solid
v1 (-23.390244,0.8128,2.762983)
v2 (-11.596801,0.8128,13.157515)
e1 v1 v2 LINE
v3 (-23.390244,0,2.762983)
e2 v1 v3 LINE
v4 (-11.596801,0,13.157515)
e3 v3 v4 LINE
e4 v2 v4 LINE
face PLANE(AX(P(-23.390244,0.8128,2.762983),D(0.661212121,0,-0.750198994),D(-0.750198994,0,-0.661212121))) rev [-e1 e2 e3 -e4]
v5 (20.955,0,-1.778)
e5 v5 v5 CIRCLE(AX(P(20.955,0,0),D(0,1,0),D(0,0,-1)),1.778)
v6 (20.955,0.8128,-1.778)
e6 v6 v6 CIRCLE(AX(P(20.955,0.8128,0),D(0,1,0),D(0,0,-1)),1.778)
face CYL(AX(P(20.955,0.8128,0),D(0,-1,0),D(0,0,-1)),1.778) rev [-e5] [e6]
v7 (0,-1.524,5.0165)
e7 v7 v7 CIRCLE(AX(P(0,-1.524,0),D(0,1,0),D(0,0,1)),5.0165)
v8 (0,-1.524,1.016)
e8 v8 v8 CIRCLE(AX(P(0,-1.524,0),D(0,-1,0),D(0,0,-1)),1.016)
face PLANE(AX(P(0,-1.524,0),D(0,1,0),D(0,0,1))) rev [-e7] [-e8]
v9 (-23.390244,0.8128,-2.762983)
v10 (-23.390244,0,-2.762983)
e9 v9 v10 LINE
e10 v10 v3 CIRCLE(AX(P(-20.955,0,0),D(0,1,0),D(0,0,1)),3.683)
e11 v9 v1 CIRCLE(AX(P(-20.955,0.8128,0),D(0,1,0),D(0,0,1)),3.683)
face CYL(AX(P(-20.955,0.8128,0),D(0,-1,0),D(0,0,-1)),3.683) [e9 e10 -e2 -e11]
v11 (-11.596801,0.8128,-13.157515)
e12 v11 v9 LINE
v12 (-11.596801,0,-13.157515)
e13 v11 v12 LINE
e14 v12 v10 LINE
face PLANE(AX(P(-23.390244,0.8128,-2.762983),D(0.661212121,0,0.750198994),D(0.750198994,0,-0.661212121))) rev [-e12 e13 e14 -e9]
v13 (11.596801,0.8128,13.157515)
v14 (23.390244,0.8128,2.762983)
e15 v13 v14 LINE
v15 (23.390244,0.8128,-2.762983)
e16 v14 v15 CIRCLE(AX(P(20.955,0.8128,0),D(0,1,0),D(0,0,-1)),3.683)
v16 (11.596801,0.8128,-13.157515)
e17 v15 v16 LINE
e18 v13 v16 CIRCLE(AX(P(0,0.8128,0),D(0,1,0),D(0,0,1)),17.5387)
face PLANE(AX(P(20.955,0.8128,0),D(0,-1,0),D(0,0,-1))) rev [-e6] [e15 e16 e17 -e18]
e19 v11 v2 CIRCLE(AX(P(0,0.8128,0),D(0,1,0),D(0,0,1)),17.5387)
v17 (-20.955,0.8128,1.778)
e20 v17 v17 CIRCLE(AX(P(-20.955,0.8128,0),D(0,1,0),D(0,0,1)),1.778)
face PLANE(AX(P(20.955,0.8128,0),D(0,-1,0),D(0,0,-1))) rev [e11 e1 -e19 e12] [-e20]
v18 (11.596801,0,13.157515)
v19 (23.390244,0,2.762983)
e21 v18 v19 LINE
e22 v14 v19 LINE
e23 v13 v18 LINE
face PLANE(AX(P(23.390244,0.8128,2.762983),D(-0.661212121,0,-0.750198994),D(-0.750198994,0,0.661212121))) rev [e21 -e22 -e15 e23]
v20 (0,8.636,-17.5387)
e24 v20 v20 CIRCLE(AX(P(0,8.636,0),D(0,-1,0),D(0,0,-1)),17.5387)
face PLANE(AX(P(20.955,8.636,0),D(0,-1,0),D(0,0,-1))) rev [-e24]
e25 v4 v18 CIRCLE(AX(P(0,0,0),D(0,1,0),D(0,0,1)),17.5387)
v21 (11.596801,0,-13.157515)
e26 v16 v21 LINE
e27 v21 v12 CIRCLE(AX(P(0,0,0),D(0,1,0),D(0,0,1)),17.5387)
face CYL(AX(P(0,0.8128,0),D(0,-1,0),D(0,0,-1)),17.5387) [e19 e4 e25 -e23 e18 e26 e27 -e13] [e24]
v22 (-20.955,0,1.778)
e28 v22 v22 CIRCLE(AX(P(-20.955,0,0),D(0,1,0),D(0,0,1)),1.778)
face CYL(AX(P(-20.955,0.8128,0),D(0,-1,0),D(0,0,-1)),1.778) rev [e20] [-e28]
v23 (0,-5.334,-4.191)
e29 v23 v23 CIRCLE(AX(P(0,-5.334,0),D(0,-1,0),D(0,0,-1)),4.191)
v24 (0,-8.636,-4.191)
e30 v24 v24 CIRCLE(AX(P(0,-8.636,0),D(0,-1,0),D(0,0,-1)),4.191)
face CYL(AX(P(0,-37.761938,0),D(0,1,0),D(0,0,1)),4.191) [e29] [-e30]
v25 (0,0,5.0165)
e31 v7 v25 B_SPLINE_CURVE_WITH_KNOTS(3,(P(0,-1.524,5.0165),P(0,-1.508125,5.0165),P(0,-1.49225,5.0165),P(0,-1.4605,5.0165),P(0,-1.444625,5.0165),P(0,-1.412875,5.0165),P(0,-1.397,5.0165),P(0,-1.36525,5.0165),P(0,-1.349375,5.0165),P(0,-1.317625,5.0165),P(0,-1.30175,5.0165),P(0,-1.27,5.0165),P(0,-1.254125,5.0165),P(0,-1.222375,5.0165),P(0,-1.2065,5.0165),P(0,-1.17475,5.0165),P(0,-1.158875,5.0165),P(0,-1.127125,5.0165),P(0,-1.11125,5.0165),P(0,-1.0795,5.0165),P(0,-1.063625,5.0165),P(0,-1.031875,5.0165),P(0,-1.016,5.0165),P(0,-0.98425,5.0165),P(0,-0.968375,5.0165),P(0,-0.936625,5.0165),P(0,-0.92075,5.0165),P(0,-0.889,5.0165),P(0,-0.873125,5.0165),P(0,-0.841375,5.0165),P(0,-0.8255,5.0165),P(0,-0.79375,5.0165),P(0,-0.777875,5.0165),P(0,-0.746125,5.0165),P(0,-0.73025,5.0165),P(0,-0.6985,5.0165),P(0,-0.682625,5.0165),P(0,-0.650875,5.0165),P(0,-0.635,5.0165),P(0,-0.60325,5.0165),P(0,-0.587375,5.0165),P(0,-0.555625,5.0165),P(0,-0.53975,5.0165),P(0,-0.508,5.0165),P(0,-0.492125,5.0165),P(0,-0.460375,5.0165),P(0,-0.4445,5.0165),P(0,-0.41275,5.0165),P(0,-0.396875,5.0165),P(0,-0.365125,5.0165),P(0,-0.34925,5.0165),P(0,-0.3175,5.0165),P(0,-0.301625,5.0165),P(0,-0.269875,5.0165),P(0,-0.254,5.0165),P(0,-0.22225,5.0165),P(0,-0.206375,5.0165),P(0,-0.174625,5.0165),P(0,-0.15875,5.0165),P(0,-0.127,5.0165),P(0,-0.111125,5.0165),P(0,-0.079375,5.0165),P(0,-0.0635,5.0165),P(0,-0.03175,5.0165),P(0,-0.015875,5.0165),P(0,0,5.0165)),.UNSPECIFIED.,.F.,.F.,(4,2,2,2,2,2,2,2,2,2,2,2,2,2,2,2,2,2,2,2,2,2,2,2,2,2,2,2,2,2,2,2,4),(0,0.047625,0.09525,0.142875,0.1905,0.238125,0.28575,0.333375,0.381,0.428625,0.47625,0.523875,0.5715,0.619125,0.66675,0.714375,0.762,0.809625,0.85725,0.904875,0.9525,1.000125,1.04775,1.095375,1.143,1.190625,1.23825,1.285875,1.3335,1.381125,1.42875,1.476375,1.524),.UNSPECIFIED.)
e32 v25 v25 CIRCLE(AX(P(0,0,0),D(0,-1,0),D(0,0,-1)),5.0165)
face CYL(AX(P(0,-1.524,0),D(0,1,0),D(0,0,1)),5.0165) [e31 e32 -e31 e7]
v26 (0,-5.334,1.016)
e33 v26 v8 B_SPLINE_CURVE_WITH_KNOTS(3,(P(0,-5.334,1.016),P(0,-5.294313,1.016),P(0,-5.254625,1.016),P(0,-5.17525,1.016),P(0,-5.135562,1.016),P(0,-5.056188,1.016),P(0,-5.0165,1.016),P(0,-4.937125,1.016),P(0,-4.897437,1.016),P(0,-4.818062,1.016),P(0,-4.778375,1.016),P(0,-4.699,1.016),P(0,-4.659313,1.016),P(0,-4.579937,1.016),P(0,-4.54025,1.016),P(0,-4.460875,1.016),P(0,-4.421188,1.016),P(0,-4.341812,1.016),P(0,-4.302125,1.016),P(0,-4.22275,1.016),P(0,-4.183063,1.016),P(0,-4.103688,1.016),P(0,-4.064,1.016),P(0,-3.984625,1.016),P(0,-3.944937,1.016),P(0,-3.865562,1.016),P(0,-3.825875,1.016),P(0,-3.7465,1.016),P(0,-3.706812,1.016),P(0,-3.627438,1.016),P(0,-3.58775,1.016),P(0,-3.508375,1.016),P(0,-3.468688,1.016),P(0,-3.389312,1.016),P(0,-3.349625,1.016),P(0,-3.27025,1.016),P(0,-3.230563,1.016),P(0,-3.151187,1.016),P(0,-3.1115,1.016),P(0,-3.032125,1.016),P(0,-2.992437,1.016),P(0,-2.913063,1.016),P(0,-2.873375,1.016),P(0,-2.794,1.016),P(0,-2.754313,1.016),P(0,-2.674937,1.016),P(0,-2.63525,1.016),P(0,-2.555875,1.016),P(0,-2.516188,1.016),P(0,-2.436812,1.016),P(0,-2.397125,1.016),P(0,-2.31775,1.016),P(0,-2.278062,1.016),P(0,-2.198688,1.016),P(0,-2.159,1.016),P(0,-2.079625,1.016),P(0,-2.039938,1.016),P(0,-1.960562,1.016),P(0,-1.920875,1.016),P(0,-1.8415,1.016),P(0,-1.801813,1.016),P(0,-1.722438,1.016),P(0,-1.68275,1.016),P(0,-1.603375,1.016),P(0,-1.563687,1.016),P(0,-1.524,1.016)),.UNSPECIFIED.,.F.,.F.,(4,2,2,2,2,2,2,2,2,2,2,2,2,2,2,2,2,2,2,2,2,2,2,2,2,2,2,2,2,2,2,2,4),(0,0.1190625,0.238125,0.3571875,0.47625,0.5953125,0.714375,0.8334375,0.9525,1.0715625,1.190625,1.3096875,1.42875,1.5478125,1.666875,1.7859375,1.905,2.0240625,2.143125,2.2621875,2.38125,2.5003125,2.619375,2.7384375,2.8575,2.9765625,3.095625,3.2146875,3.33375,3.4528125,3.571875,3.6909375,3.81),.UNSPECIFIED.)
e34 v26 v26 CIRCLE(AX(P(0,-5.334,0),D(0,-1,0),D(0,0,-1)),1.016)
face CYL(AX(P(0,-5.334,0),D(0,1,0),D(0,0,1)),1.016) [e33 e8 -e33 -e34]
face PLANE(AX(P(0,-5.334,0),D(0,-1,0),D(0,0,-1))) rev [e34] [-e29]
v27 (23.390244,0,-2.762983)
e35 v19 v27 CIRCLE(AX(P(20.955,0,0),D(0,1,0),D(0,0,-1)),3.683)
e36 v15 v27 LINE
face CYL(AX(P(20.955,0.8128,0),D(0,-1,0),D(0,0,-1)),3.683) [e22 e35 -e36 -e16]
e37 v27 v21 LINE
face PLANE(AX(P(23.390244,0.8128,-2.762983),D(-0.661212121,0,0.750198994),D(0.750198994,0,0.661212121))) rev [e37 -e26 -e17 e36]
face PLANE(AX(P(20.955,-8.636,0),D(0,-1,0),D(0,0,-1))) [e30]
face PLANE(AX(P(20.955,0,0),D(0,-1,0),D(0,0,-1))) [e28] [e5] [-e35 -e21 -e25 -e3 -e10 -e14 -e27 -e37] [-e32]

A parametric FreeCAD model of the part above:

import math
import FreeCAD as App
import Part
import Sketcher

V = App.Vector
Q = App.Units.Quantity

doc = App.newDocument("Part")
body = doc.addObject("PartDesign::Body", "Body")

# Sketch on XZ plane
sketch1 = body.newObject("Sketcher::SketchObject", "Sketch")
sketch1.AttachmentSupport = (doc.getObject("XZ_Plane"), [""])
sketch1.MapMode = "FlatFace"
sketch1.addGeometry([
    Part.LineSegment(V(-11.596801, -13.157515, 0), V(-23.390244, -2.762983, 0)),  # 0
    Part.ArcOfCircle(Part.Circle(V(-20.955, 0, 0), V(0, 0, 1), 3.683), math.radians(131.392382), math.radians(228.607618)),  # 1
    Part.LineSegment(V(-23.390244, 2.762983, 0), V(-11.596801, 13.157515, 0)),  # 2
    Part.ArcOfCircle(Part.Circle(V(0, 0, 0), V(0, 0, 1), 17.5387), math.radians(48.607618), math.radians(131.392382)),  # 3
    Part.LineSegment(V(11.596801, 13.157515, 0), V(23.390244, 2.762983, 0)),  # 4
    Part.ArcOfCircle(Part.Circle(V(20.955, 0, 0), V(0, 0, 1), 3.683), math.radians(-48.607618), math.radians(48.607618)),  # 5
    Part.LineSegment(V(23.390244, -2.762983, 0), V(11.596801, -13.157515, 0)),  # 6
    Part.ArcOfCircle(Part.Circle(V(0, 0, 0), V(0, 0, 1), 17.5387), math.radians(-131.392382), math.radians(-48.607618)),  # 7
    Part.Circle(V(20.955, 0, 0), V(0, 0, 1), 1.778),  # 8
    Part.Circle(V(-20.955, 0, 0), V(0, 0, 1), 1.778),  # 9
], False)
sketch1.addConstraint([
    Sketcher.Constraint("Tangent", 0, 2, 1, 2),
    Sketcher.Constraint("Tangent", 1, 1, 2, 1),
    Sketcher.Constraint("Tangent", 2, 2, 3, 2),
    Sketcher.Constraint("Tangent", 3, 1, 4, 1),
    Sketcher.Constraint("Tangent", 4, 2, 5, 2),
    Sketcher.Constraint("Tangent", 5, 1, 6, 1),
    Sketcher.Constraint("Tangent", 6, 2, 7, 2),
    Sketcher.Constraint("Tangent", 7, 1, 0, 1),
    Sketcher.Constraint("Coincident", 3, 3, -1, 1),
    Sketcher.Constraint("Coincident", 7, 3, -1, 1),
    Sketcher.Constraint("Coincident", 8, 3, 5, 3),
    Sketcher.Constraint("Coincident", 9, 3, 1, 3),
    Sketcher.Constraint("Equal", 1, 5),
    Sketcher.Constraint("Equal", 3, 7),
    Sketcher.Constraint("Equal", 8, 9),
    Sketcher.Constraint("Symmetric", 1, 3, 5, 3, -1, 1),
    Sketcher.Constraint("PointOnObject", 1, 3, -1),
    Sketcher.Constraint("Diameter", 8, Q("0.14 in")),
    Sketcher.Constraint("Radius", 1, Q("0.145 in")),
    Sketcher.Constraint("Radius", 3, Q("0.6905 in")),
    Sketcher.Constraint("DistanceX", 1, 3, 5, 3, Q("1.65 in")),
])
pad1 = body.newObject("PartDesign::Pad", "Pad")
pad1.Profile = sketch1
pad1.Length = Q("0.032 in")
pad1.Reversed = True

# Sketch on XZ plane
sketch2 = body.newObject("Sketcher::SketchObject", "Sketch001")
sketch2.AttachmentSupport = (doc.getObject("XZ_Plane"), [""])
sketch2.MapMode = "FlatFace"
sketch2.AttachmentOffset = App.Placement(V(0, 0, -0.032 * 25.4), App.Rotation())
sketch2.addGeometry(Part.Circle(V(0, 0, 0), V(0, 0, 1), 17.5387), False)
sketch2.addConstraint([
    Sketcher.Constraint("Coincident", 0, 3, -1, 1),
    Sketcher.Constraint("Diameter", 0, Q("1.381 in")),
])
pad2 = body.newObject("PartDesign::Pad", "Pad001")
pad2.Profile = sketch2
pad2.Length = Q("0.308 in")
pad2.Reversed = True

# Sketch on XZ plane
sketch3 = body.newObject("Sketcher::SketchObject", "Sketch002")
sketch3.AttachmentSupport = (doc.getObject("XZ_Plane"), [""])
sketch3.MapMode = "FlatFace"
sketch3.addGeometry(Part.Circle(V(0, 0, 0), V(0, 0, 1), 5.0165), False)
sketch3.addConstraint([
    Sketcher.Constraint("Coincident", 0, 3, -1, 1),
    Sketcher.Constraint("Diameter", 0, Q("0.395 in")),
])
pad3 = body.newObject("PartDesign::Pad", "Pad002")
pad3.Profile = sketch3
pad3.Length = Q("0.06 in")

# Sketch on XZ plane
sketch4 = body.newObject("Sketcher::SketchObject", "Sketch003")
sketch4.AttachmentSupport = (doc.getObject("XZ_Plane"), [""])
sketch4.MapMode = "FlatFace"
sketch4.AttachmentOffset = App.Placement(V(0, 0, 0.06 * 25.4), App.Rotation())
sketch4.addGeometry(Part.Circle(V(0, 0, 0), V(0, 0, 1), 1.016), False)
sketch4.addConstraint([
    Sketcher.Constraint("Coincident", 0, 3, -1, 1),
    Sketcher.Constraint("Diameter", 0, Q("0.08 in")),
])
pad4 = body.newObject("PartDesign::Pad", "Pad003")
pad4.Profile = sketch4
pad4.Length = Q("0.15 in")

# Sketch on XZ plane
sketch5 = body.newObject("Sketcher::SketchObject", "Sketch004")
sketch5.AttachmentSupport = (doc.getObject("XZ_Plane"), [""])
sketch5.MapMode = "FlatFace"
sketch5.AttachmentOffset = App.Placement(V(0, 0, 0.21 * 25.4), App.Rotation())
sketch5.addGeometry(Part.Circle(V(0, 0, 0), V(0, 0, 1), 4.191), False)
sketch5.addConstraint([
    Sketcher.Constraint("Coincident", 0, 3, -1, 1),
    Sketcher.Constraint("Diameter", 0, Q("0.33 in")),
])
pad5 = body.newObject("PartDesign::Pad", "Pad004")
pad5.Profile = sketch5
pad5.Length = Q("0.13 in")

doc.recompute()
